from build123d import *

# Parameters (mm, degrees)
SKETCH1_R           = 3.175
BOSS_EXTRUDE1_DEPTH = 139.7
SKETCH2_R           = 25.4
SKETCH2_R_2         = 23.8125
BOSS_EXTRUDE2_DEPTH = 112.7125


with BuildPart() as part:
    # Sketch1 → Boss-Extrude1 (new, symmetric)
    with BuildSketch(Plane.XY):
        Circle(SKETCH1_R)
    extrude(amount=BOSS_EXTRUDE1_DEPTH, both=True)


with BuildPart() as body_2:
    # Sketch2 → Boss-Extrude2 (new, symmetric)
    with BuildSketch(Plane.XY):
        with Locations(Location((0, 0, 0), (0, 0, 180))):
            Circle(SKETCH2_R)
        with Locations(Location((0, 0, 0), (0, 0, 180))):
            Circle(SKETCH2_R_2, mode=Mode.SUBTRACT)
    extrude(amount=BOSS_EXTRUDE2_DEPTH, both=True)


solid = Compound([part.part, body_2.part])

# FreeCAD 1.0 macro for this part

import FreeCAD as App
import Part
import Sketcher

V = App.Vector
Q = App.Units.Quantity

doc = App.newDocument("Part")
body = doc.addObject("PartDesign::Body", "Body")

# Sketch on XY plane
sketch1 = body.newObject("Sketcher::SketchObject", "Sketch")
sketch1.AttachmentSupport = (doc.getObject("XY_Plane"), [""])
sketch1.MapMode = "FlatFace"
sketch1.addGeometry(Part.Circle(V(0, 0, 0), V(0, 0, 1), 3.2), False)
sketch1.addConstraint(Sketcher.Constraint("Coincident", 0, 3, -1, 1))
sketch1.addConstraint(Sketcher.Constraint("Diameter", 0, Q("0.25 in")))
pad1 = body.newObject("PartDesign::Pad", "Pad")
pad1.Profile = sketch1
pad1.Length = Q("11 in")
pad1.Midplane = True
body2 = doc.addObject("PartDesign::Body", "Body001")

# Sketch on XY plane
sketch2 = body2.newObject("Sketcher::SketchObject", "Sketch001")
sketch2.AttachmentSupport = (doc.getObject("XY_Plane001"), [""])
sketch2.MapMode = "FlatFace"
sketch2.addGeometry(Part.Circle(V(0, 0, 0), V(0, 0, 1), 25), False)
sketch2.addGeometry(Part.Circle(V(0, 0, 0), V(0, 0, 1), 24), False)
sketch2.addConstraint(Sketcher.Constraint("Coincident", 0, 3, -1, 1))
sketch2.addConstraint(Sketcher.Constraint("Coincident", 1, 3, -1, 1))
sketch2.addConstraint(Sketcher.Constraint("Diameter", 0, Q("2 in")))
sketch2.addConstraint(Sketcher.Constraint("Diameter", 1, Q("1.875 in")))
pad2 = body2.newObject("PartDesign::Pad", "Pad001")
pad2.Profile = sketch2
pad2.Length = Q("8.875 in")
pad2.Midplane = True

doc.recompute()
